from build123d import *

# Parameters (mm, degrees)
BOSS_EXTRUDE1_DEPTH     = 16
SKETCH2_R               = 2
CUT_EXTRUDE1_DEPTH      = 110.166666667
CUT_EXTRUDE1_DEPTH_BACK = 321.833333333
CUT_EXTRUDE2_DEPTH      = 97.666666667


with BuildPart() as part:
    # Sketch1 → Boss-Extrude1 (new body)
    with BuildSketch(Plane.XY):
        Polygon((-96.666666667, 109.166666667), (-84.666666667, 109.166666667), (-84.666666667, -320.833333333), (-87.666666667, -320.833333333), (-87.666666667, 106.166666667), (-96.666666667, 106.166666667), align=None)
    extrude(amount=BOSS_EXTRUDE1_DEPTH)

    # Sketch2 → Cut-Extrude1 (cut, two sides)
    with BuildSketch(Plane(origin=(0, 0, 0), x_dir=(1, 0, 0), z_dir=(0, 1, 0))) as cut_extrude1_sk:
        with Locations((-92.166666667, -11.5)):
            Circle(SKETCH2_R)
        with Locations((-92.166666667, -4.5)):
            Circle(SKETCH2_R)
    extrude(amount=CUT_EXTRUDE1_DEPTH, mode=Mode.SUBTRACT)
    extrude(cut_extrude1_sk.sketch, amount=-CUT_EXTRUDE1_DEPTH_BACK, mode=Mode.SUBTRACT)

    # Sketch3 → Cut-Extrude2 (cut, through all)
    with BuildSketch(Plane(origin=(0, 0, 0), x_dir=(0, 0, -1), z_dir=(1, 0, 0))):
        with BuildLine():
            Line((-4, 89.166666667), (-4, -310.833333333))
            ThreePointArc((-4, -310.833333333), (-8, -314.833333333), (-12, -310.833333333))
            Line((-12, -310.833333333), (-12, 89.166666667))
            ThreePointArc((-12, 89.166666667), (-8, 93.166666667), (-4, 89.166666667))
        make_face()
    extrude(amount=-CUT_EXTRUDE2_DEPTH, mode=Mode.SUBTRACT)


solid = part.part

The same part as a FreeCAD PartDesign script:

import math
import FreeCAD as App
import Part
import Sketcher
Q = App.Units.Quantity

doc = App.newDocument("Part")
body = doc.addObject("PartDesign::Body", "Body")

# Sketch on XY plane
sketch1 = doc.addObject("Sketcher::SketchObject", "Sketch")
body.addObject(sketch1)
sketch1.AttachmentSupport = (doc.XY_Plane, [""])
sketch1.MapMode = "FlatFace"
sketch1.addGeometry([
    Part.LineSegment(App.Vector(-84.7, 109.2, 0), App.Vector(-96.7, 109.2, 0)),  # 0
    Part.LineSegment(App.Vector(-96.7, 109.2, 0), App.Vector(-96.7, 106.2, 0)),  # 1
    Part.LineSegment(App.Vector(-96.7, 106.2, 0), App.Vector(-87.7, 106.2, 0)),  # 2
    Part.LineSegment(App.Vector(-87.7, 106.2, 0), App.Vector(-87.7, -320.8, 0)),  # 3
    Part.LineSegment(App.Vector(-87.7, -320.8, 0), App.Vector(-84.7, -320.8, 0)),  # 4
    Part.LineSegment(App.Vector(-84.7, -320.8, 0), App.Vector(-84.7, 109.2, 0)),  # 5
], False)
sketch1.addConstraint([
    Sketcher.Constraint("Coincident", 0, 2, 1, 1),
    Sketcher.Constraint("Coincident", 1, 2, 2, 1),
    Sketcher.Constraint("Coincident", 2, 2, 3, 1),
    Sketcher.Constraint("Coincident", 3, 2, 4, 1),
    Sketcher.Constraint("Coincident", 4, 2, 5, 1),
    Sketcher.Constraint("Coincident", 5, 2, 0, 1),
    Sketcher.Constraint("Horizontal", 0),
    Sketcher.Constraint("Vertical", 1),
    Sketcher.Constraint("Horizontal", 2),
    Sketcher.Constraint("Vertical", 3),
    Sketcher.Constraint("Horizontal", 4),
    Sketcher.Constraint("Vertical", 5),
    Sketcher.Constraint("Equal", 4, 1),
    Sketcher.Constraint("DistanceX", 0, 2, 0, 1, Q("12 mm")),
    Sketcher.Constraint("DistanceX", 2, 1, 2, 2, Q("9 mm")),
    Sketcher.Constraint("DistanceY", 3, 2, 3, 1, Q("427 mm")),
    Sketcher.Constraint("DistanceX", 0, 2, -1, 1, Q("96.666667 mm")),
    Sketcher.Constraint("DistanceY", -1, 1, 0, 2, Q("109.166667 mm")),
])
pad1 = doc.addObject("PartDesign::Pad", "Pad")
body.addObject(pad1)
pad1.Profile = sketch1
pad1.Length = 16

# Sketch on XZ plane
sketch2 = doc.addObject("Sketcher::SketchObject", "Sketch001")
body.addObject(sketch2)
sketch2.AttachmentSupport = (doc.XZ_Plane, [""])
sketch2.MapMode = "FlatFace"
sketch2.addGeometry([
    Part.Circle(App.Vector(-92.2, 11.5, 0), App.Vector(0, 0, 1), 2),
    Part.Circle(App.Vector(-92.2, 4.5, 0), App.Vector(0, 0, 1), 2),
], False)
sketch2.addConstraint([
    Sketcher.Constraint("Equal", 0, 1),
    Sketcher.Constraint("Vertical", 0, 3, 1, 3),
    Sketcher.Constraint("Diameter", 0, Q("4 mm")),
    Sketcher.Constraint("DistanceY", 1, 3, 0, 3, Q("7 mm")),
    Sketcher.Constraint("DistanceY", -1, 1, 0, 3, Q("11.5 mm")),
    Sketcher.Constraint("DistanceX", 0, 3, -1, 1, Q("92.166667 mm")),
])
pocket1 = doc.addObject("PartDesign::Pocket", "Pocket")
body.addObject(pocket1)
pocket1.Profile = sketch2
pocket1.Type = "ThroughAll"
pocket1.Midplane = True

# Sketch on YZ plane
sketch3 = doc.addObject("Sketcher::SketchObject", "Sketch002")
body.addObject(sketch3)
sketch3.AttachmentSupport = (doc.YZ_Plane, [""])
sketch3.MapMode = "FlatFace"
sketch3.addGeometry([
    Part.LineSegment(App.Vector(-310.8, 4, 0), App.Vector(89.2, 4, 0)),
    Part.ArcOfCircle(Part.Circle(App.Vector(89.2, 8, 0), App.Vector(0, 0, 1), 4), math.radians(-90), math.radians(90)),
    Part.LineSegment(App.Vector(89.2, 12, 0), App.Vector(-310.8, 12, 0)),
    Part.ArcOfCircle(Part.Circle(App.Vector(-310.8, 8, 0), App.Vector(0, 0, 1), 4), math.radians(90), math.radians(270)),
], False)
sketch3.addConstraint([
    Sketcher.Constraint("Tangent", 0, 2, 1, 1),
    Sketcher.Constraint("Tangent", 1, 2, 2, 1),
    Sketcher.Constraint("Tangent", 2, 2, 3, 1),
    Sketcher.Constraint("Tangent", 3, 2, 0, 1),
    Sketcher.Constraint("Horizontal", 0),
    Sketcher.Constraint("Horizontal", 2),
    Sketcher.Constraint("Radius", 1, Q("4 mm")),
    Sketcher.Constraint("DistanceX", 0, 1, 0, 2, Q("400 mm")),
    Sketcher.Constraint("DistanceY", -1, 1, 1, 3, Q("8 mm")),
    Sketcher.Constraint("DistanceX", -1, 1, 1, 3, Q("89.166667 mm")),
])
pocket2 = doc.addObject("PartDesign::Pocket", "Pocket001")
body.addObject(pocket2)
pocket2.Profile = sketch3
pocket2.Type = "ThroughAll"

doc.recompute()
